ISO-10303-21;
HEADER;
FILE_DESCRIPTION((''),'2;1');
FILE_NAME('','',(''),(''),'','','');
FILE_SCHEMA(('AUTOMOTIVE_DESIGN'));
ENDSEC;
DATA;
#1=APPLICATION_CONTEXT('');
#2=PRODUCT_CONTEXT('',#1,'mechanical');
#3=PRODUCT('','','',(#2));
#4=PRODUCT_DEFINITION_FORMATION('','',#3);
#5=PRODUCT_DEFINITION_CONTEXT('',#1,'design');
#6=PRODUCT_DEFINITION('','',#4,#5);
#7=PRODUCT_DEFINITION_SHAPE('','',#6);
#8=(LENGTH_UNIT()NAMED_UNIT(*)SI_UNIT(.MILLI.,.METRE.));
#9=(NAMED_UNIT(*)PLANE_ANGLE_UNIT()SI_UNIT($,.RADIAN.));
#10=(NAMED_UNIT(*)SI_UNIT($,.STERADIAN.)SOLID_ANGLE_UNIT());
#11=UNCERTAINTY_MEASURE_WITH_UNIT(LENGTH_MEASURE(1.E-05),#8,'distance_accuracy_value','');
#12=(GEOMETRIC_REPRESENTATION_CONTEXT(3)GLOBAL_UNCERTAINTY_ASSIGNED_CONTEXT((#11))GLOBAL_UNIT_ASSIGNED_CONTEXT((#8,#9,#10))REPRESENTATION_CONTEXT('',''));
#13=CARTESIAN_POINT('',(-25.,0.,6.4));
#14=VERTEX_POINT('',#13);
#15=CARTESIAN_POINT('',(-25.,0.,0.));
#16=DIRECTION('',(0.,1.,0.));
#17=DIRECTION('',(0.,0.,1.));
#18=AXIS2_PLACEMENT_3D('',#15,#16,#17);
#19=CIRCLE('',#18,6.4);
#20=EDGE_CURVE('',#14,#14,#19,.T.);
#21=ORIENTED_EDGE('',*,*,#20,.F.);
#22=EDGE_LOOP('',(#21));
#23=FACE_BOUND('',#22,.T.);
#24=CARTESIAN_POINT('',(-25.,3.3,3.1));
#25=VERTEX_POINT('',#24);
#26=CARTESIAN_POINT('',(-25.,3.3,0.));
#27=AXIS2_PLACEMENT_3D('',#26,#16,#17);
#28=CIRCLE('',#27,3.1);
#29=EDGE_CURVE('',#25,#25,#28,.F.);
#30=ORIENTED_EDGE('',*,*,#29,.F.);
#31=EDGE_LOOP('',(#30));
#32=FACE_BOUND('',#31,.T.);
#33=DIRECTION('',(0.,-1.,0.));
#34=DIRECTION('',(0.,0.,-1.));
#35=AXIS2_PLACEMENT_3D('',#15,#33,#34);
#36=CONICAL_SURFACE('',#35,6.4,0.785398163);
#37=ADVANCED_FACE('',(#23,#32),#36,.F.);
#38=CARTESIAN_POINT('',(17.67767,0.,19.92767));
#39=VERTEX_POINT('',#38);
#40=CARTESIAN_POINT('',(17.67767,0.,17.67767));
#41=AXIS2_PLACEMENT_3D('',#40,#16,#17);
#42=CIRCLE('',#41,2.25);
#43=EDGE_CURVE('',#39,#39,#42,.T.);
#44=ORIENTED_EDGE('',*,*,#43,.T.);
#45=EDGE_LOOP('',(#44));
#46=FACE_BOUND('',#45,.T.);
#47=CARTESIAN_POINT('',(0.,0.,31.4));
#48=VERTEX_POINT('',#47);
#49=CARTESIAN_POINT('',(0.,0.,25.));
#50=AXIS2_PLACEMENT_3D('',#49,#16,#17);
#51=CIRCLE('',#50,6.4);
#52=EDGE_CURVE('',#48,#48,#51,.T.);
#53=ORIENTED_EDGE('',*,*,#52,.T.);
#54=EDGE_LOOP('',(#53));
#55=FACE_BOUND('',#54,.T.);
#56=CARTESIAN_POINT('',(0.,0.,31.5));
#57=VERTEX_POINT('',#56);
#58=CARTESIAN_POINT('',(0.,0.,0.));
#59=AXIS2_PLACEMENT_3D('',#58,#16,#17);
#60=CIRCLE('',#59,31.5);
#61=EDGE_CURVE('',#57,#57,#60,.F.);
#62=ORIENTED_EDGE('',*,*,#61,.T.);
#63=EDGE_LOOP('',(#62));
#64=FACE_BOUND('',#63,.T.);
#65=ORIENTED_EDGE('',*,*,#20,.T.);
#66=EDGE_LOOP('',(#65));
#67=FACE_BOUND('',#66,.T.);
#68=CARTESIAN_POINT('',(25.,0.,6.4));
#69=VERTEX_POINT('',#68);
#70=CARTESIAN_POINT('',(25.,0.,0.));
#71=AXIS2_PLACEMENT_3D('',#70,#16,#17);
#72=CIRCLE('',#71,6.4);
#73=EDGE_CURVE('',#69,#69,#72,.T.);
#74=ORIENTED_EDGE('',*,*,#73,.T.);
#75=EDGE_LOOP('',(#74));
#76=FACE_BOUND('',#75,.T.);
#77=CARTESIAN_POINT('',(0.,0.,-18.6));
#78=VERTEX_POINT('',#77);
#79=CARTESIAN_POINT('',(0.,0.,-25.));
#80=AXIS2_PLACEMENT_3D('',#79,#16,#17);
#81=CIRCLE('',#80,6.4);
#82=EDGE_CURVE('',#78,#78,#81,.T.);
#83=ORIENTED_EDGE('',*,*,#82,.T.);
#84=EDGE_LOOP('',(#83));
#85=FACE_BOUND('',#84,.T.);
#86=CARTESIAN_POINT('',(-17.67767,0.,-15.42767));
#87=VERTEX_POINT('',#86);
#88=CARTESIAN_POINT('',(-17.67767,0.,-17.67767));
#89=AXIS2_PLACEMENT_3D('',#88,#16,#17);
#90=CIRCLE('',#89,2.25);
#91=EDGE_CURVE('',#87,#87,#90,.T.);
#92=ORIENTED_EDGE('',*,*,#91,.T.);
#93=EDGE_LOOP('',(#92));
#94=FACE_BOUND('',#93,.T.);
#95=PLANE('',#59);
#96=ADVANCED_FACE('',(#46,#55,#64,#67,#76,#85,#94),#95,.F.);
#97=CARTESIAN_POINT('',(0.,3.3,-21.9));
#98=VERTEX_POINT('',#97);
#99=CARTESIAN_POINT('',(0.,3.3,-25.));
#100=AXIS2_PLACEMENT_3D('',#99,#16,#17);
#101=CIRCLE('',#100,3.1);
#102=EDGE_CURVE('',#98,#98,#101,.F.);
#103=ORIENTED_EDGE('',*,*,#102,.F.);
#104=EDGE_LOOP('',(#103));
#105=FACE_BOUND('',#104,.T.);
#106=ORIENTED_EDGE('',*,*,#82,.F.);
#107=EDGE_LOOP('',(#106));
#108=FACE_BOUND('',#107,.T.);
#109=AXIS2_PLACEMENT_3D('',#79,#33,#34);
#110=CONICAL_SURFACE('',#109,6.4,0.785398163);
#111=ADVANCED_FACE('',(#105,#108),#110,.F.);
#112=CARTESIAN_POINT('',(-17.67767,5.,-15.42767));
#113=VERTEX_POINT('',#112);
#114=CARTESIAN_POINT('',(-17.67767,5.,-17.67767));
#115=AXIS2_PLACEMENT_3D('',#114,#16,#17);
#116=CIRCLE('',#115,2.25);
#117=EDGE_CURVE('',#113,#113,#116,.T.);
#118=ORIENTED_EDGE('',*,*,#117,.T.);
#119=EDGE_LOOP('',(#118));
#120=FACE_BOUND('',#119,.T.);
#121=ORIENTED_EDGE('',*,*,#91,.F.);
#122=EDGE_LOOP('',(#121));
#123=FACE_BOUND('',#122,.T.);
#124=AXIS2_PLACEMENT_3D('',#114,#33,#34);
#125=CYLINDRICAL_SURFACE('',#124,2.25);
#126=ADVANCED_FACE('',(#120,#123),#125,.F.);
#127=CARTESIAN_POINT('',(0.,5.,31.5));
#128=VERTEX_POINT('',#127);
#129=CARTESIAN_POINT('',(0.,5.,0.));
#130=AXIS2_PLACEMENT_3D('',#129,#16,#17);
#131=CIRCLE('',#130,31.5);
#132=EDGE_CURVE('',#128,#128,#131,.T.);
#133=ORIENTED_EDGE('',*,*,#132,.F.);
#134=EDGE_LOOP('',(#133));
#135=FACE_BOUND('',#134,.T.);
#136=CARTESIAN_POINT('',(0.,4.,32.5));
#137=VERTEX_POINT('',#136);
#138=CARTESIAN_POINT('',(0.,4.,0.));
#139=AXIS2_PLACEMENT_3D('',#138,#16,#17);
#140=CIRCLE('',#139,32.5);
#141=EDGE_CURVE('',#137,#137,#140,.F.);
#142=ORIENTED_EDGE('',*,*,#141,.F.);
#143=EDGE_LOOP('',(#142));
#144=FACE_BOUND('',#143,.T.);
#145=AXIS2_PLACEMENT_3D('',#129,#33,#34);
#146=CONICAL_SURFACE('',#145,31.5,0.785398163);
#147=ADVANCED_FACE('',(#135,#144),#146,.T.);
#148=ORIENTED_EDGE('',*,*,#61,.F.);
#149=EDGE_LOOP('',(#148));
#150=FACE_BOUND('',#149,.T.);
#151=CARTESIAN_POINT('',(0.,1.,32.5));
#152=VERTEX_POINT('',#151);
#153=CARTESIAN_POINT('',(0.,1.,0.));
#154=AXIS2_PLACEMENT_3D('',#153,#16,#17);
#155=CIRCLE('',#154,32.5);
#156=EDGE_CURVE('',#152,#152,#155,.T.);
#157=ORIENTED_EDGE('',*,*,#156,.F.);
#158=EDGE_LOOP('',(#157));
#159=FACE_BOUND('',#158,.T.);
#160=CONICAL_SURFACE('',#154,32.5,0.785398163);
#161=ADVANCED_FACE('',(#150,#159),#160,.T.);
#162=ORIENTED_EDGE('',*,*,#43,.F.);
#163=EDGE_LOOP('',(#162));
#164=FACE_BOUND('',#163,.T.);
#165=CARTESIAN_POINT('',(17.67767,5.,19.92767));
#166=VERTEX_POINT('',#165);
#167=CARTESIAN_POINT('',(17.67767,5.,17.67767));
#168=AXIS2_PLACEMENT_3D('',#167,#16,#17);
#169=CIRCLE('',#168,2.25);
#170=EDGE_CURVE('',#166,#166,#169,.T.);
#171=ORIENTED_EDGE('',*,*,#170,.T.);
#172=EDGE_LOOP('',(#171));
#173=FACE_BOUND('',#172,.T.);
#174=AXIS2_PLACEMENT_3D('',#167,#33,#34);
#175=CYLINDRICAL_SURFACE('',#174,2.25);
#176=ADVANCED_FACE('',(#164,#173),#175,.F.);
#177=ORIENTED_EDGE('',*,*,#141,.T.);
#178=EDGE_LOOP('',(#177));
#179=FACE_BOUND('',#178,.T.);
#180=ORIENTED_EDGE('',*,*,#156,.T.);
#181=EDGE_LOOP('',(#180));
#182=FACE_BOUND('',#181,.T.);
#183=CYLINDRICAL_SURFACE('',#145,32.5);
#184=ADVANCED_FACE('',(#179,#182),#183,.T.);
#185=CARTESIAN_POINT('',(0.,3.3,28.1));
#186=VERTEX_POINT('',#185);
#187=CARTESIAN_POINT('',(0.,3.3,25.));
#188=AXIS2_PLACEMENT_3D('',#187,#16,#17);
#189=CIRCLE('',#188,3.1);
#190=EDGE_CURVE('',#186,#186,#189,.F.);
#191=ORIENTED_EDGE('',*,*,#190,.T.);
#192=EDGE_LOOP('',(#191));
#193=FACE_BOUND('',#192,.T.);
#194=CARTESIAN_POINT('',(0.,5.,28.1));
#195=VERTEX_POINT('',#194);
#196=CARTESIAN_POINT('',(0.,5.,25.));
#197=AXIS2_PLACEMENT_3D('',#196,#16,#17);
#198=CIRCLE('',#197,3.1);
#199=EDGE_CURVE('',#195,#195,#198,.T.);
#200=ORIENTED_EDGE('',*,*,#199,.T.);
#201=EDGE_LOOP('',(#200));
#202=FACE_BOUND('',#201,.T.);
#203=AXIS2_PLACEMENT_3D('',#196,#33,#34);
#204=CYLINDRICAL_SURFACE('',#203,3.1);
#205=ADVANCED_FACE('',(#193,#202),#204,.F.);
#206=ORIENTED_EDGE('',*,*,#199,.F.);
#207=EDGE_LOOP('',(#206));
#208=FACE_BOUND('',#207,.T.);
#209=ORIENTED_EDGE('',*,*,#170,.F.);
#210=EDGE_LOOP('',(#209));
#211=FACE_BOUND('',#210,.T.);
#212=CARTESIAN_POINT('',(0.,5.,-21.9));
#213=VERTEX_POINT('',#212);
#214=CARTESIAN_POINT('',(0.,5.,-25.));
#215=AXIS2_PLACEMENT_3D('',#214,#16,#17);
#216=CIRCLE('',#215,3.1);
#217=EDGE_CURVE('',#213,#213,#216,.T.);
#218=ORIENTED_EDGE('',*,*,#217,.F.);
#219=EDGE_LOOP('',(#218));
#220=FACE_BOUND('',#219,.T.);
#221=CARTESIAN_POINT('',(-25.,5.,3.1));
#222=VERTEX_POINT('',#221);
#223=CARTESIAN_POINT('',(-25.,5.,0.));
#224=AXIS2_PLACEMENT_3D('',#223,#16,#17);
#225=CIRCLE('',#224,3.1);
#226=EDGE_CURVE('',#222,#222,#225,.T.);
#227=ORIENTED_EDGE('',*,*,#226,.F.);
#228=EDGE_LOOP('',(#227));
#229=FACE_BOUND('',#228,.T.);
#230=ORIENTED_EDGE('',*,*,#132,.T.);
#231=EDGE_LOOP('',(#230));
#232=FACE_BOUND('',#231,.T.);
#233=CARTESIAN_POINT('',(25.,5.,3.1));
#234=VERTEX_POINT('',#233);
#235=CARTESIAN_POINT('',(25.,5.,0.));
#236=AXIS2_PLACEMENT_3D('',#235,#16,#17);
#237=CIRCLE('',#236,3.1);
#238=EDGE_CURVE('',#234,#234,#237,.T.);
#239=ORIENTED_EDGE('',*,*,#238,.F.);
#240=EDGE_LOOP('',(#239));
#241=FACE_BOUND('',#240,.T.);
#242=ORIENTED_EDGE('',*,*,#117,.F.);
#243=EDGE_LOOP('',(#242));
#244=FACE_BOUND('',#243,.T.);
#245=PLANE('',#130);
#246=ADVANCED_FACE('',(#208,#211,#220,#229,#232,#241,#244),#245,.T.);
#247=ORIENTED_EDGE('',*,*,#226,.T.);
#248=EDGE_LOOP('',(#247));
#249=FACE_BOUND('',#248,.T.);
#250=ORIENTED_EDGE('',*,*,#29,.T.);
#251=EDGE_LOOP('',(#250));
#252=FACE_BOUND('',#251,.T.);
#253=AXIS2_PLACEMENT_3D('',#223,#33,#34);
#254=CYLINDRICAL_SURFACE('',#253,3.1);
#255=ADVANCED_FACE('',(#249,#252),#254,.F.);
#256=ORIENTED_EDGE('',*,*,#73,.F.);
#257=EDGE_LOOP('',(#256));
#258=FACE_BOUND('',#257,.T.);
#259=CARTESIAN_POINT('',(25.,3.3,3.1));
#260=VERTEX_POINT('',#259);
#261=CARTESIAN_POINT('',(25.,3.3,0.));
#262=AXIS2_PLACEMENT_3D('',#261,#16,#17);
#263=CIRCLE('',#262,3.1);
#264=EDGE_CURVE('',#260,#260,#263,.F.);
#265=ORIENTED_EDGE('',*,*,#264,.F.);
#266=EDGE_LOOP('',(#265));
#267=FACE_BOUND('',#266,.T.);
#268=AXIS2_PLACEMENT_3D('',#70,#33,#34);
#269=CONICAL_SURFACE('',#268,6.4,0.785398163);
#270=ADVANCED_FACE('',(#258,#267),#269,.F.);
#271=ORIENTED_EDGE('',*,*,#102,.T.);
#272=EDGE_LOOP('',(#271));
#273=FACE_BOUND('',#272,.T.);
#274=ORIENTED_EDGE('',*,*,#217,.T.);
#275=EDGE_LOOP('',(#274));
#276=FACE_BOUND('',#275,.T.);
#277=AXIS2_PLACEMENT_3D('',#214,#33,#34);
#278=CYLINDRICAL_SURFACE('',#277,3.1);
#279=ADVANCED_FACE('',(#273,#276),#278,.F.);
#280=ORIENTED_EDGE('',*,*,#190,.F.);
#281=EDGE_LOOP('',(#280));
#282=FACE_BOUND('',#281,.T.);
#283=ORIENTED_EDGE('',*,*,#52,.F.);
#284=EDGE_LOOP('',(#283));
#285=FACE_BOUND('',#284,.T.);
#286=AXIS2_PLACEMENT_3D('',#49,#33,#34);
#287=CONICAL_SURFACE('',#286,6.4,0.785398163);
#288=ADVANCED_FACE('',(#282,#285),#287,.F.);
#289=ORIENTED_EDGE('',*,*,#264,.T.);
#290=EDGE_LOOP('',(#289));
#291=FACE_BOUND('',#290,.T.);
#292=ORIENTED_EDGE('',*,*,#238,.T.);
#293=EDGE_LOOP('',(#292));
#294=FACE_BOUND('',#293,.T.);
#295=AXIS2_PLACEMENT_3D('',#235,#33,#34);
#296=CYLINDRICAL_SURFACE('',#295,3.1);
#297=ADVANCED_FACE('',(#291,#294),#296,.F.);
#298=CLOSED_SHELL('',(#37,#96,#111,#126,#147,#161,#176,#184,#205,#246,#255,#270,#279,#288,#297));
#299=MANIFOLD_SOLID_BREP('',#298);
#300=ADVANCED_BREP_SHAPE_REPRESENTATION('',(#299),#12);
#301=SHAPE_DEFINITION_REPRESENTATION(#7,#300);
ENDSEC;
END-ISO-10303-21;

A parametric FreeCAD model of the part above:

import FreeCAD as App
import Part
import Sketcher


def edges_at(feature, points):
    """Names of the edges that pass closest to the given points."""
    edges = feature.Shape.Edges
    near = lambda p: min(range(len(edges)), key=lambda i: edges[i].distToShape(Part.Vertex(*p))[0])
    return sorted({f"Edge{near(p) + 1}" for p in points})

doc = App.newDocument("Part")
body = doc.addObject("PartDesign::Body", "Body")

# Sketch on XZ plane
sketch1 = body.newObject("Sketcher::SketchObject", "Sketch")
sketch1.AttachmentSupport = (doc.getObject("XZ_Plane"), [""])
sketch1.MapMode = "FlatFace"
sketch1.addGeometry(Part.Circle(App.Vector(0, 0, 0), App.Vector(0, 0, 1), 32.5), False)
sketch1.addGeometry(Part.Circle(App.Vector(-17.67767, -17.67767, 0), App.Vector(0, 0, 1), 2.25), False)
sketch1.addGeometry(Part.Circle(App.Vector(0, -25, 0), App.Vector(0, 0, 1), 3.1), False)
sketch1.addGeometry(Part.Circle(App.Vector(-25, 0, 0), App.Vector(0, 0, 1), 3.1), False)
sketch1.addGeometry(Part.Circle(App.Vector(25, 0, 0), App.Vector(0, 0, 1), 3.1), False)
sketch1.addGeometry(Part.Circle(App.Vector(0, 25, 0), App.Vector(0, 0, 1), 3.1), False)
sketch1.addGeometry(Part.Circle(App.Vector(17.67767, 17.67767, 0), App.Vector(0, 0, 1), 2.25), False)
sketch1.addConstraint(Sketcher.Constraint("Coincident", 0, 3, -1, 1))
sketch1.addConstraint(Sketcher.Constraint("Equal", 2, 3))
sketch1.addConstraint(Sketcher.Constraint("Equal", 3, 4))
sketch1.addConstraint(Sketcher.Constraint("Equal", 4, 5))
sketch1.addConstraint(Sketcher.Constraint("Equal", 1, 6))
sketch1.addConstraint(Sketcher.Constraint("Symmetric", 3, 3, 4, 3, -1, 1))
sketch1.addConstraint(Sketcher.Constraint("Symmetric", 2, 3, 5, 3, -1, 1))
sketch1.addConstraint(Sketcher.Constraint("Symmetric", 1, 3, 6, 3, -1, 1))
sketch1.addConstraint(Sketcher.Constraint("PointOnObject", 2, 3, -2))
sketch1.addConstraint(Sketcher.Constraint("PointOnObject", 3, 3, -1))
sketch1.addConstraint(Sketcher.Constraint("Diameter", 0, 65.0))
sketch1.addConstraint(Sketcher.Constraint("Diameter", 1, 4.5))
sketch1.addConstraint(Sketcher.Constraint("Diameter", 2, 6.2))
sketch1.addConstraint(Sketcher.Constraint("DistanceY", 2, 3, -1, 1, 25.0))
sketch1.addConstraint(Sketcher.Constraint("DistanceX", 3, 3, -1, 1, 25.0))
sketch1.addConstraint(Sketcher.Constraint("DistanceX", 1, 3, -1, 1, 17.67767))
sketch1.addConstraint(Sketcher.Constraint("DistanceY", 1, 3, -1, 1, 17.67767))
pad1 = body.newObject("PartDesign::Pad", "Pad")
pad1.Profile = sketch1
pad1.Length = 5
pad1.Reversed = True
doc.recompute()

chamfer = body.newObject("PartDesign::Chamfer", "Chamfer")
chamfer.Base = (pad1, edges_at(pad1, [
    (25, 0, -3.1),
    (0, 0, 21.9),
    (-25, 0, -3.1),
    (0, 0, -28.1),
]))
chamfer.Size = 3.3
doc.recompute()

chamfer2 = body.newObject("PartDesign::Chamfer", "Chamfer001")
chamfer2.Base = (chamfer, edges_at(chamfer, [(0, 0, -32.5), (0, 5, -32.5)]))
chamfer2.Size = 1

doc.recompute()
